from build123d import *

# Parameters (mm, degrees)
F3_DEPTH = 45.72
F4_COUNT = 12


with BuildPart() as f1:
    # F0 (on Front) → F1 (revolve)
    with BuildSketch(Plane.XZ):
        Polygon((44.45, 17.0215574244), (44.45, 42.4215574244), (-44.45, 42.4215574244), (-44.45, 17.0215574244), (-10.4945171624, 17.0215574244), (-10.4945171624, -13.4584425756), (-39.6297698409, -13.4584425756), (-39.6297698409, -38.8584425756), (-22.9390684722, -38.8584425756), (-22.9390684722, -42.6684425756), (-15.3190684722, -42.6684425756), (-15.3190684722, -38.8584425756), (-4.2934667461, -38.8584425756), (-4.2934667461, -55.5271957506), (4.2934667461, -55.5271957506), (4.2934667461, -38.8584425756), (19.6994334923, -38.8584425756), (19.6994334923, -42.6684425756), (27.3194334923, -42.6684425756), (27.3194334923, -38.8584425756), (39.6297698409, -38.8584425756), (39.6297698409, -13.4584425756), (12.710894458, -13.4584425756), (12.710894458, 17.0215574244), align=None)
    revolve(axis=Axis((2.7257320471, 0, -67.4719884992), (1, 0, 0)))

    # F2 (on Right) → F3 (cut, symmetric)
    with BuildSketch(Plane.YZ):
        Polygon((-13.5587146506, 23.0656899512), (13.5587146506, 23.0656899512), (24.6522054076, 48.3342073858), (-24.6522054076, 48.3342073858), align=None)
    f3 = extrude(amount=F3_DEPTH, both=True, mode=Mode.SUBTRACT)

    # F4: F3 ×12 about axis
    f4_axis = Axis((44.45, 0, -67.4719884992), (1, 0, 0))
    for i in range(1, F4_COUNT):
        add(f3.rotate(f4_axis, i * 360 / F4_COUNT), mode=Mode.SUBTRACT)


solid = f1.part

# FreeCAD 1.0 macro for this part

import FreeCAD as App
import Part
import Sketcher
from FreeCAD import Vector
Q = App.Units.Quantity


def add_polygon(sketch, points):
    """Adds a closed chain of lines whose ends are joined by coincident constraints."""
    first, n = sketch.GeometryCount, len(points)
    for a, b in zip(points, points[1:] + points[:1]):
        sketch.addGeometry(Part.LineSegment(App.Vector(*a, 0), App.Vector(*b, 0)), False)
    for i in range(n):
        sketch.addConstraint(Sketcher.Constraint("Coincident", first + i, 2, first + (i + 1) % n, 1))

doc = App.newDocument("Part")
body = doc.addObject("PartDesign::Body", "Body")

sketch1 = body.newObject("Sketcher::SketchObject", "Sketch")
sketch1.AttachmentSupport = (doc.getObject("XZ_Plane"), [""])
sketch1.MapMode = "FlatFace"
add_polygon(sketch1, [(44.5, 17), (44.5, 42.4), (-44.5, 42.4), (-44.5, 17), (-10.5, 17), (-10.5, -13.5), (-39.6, -13.5), (-39.6, -38.9), (-22.9, -38.9), (-22.9, -42.7), (-15.3, -42.7), (-15.3, -38.9), (-4.3, -38.9), (-4.3, -55.5), (4.3, -55.5), (4.3, -38.9), (19.7, -38.9), (19.7, -42.7), (27.3, -42.7), (27.3, -38.9), (39.6, -38.9), (39.6, -13.5), (12.7, -13.5), (12.7, 17)])
sketch1.addGeometry(Part.LineSegment(Vector(-44.5, -67.5, 0), Vector(44.5, -67.5, 0)), True)
sketch1.addConstraint(Sketcher.Constraint("Vertical", 0))
sketch1.addConstraint(Sketcher.Constraint("Horizontal", 1))
sketch1.addConstraint(Sketcher.Constraint("Vertical", 2))
sketch1.addConstraint(Sketcher.Constraint("Horizontal", 3))
sketch1.addConstraint(Sketcher.Constraint("Vertical", 4))
sketch1.addConstraint(Sketcher.Constraint("Horizontal", 5))
sketch1.addConstraint(Sketcher.Constraint("Vertical", 6))
sketch1.addConstraint(Sketcher.Constraint("Horizontal", 7))
sketch1.addConstraint(Sketcher.Constraint("Vertical", 8))
sketch1.addConstraint(Sketcher.Constraint("Horizontal", 9))
sketch1.addConstraint(Sketcher.Constraint("Vertical", 10))
sketch1.addConstraint(Sketcher.Constraint("Horizontal", 11))
sketch1.addConstraint(Sketcher.Constraint("Vertical", 12))
sketch1.addConstraint(Sketcher.Constraint("Horizontal", 13))
sketch1.addConstraint(Sketcher.Constraint("Vertical", 14))
sketch1.addConstraint(Sketcher.Constraint("Horizontal", 15))
sketch1.addConstraint(Sketcher.Constraint("Vertical", 16))
sketch1.addConstraint(Sketcher.Constraint("Horizontal", 17))
sketch1.addConstraint(Sketcher.Constraint("Vertical", 18))
sketch1.addConstraint(Sketcher.Constraint("Horizontal", 19))
sketch1.addConstraint(Sketcher.Constraint("Vertical", 20))
sketch1.addConstraint(Sketcher.Constraint("Horizontal", 21))
sketch1.addConstraint(Sketcher.Constraint("Vertical", 22))
sketch1.addConstraint(Sketcher.Constraint("Horizontal", 23))
sketch1.addConstraint(Sketcher.Constraint("Horizontal", 24))
sketch1.addConstraint(Sketcher.Constraint("Symmetric", 11, 2, 14, 2, -2))
sketch1.addConstraint(Sketcher.Constraint("Symmetric", 6, 2, 19, 2, -2))
sketch1.addConstraint(Sketcher.Constraint("Symmetric", 2, 2, 23, 2, -2))
sketch1.addConstraint(Sketcher.Constraint("Horizontal", 7, 2, 10, 2))
sketch1.addConstraint(Sketcher.Constraint("Horizontal", 9, 2, 16, 2))
sketch1.addConstraint(Sketcher.Constraint("Horizontal", 5, 2, 20, 2))
sketch1.addConstraint(Sketcher.Constraint("Vertical", 2, 2, 24, 1))
sketch1.addConstraint(Sketcher.Constraint("Vertical", 23, 2, 24, 2))
sketch1.addConstraint(Sketcher.Constraint("Equal", 9, 17))
sketch1.addConstraint(Sketcher.Constraint("Equal", 2, 6))
sketch1.addConstraint(Sketcher.Constraint("DistanceY", 0, 1, 0, 2, Q("1 in")))
sketch1.addConstraint(Sketcher.Constraint("DistanceX", 1, 2, 1, 1, Q("3.5 in")))
sketch1.addConstraint(Sketcher.Constraint("DistanceX", 9, 1, 9, 2, Q("0.3 in")))
sketch1.addConstraint(Sketcher.Constraint("DistanceY", 4, 2, 4, 1, Q("1.2 in")))
sketch1.addConstraint(Sketcher.Constraint("DistanceY", 8, 2, 8, 1, Q("0.15 in")))
sketch1.addConstraint(Sketcher.Constraint("DistanceY", 12, 2, 12, 1, Q("0.6562501 in")))
sketch1.addConstraint(Sketcher.Constraint("DistanceX", 7, 1, 7, 2, 16.690701))
sketch1.addConstraint(Sketcher.Constraint("DistanceX", 11, 1, 11, 2, 11.025602))
sketch1.addConstraint(Sketcher.Constraint("DistanceX", 11, 2, 15, 2, 23.9929))
sketch1.addConstraint(Sketcher.Constraint("DistanceX", 3, 1, 3, 2, 33.955483))
sketch1.addConstraint(Sketcher.Constraint("DistanceX", 5, 2, 5, 1, 29.135253))
sketch1.addConstraint(Sketcher.Constraint("DistanceX", 21, 2, 21, 1, 26.918875))
sketch1.addConstraint(Sketcher.Constraint("DistanceY", 24, 1, -1, 1, 67.471988))
sketch1.addConstraint(Sketcher.Constraint("DistanceY", -1, 1, 0, 2, 42.421557))
revolution = body.newObject("PartDesign::Revolution", "Revolution")
revolution.Profile = sketch1
revolution.ReferenceAxis = (sketch1, ["Axis0"])
revolution.Angle = 360

sketch2 = body.newObject("Sketcher::SketchObject", "Sketch001")
sketch2.AttachmentSupport = (doc.getObject("YZ_Plane"), [""])
sketch2.MapMode = "FlatFace"
add_polygon(sketch2, [(-14, 23), (14, 23), (25, 48), (-25, 48)])
sketch2.addConstraint(Sketcher.Constraint("Horizontal", 0))
sketch2.addConstraint(Sketcher.Constraint("Horizontal", 2))
sketch2.addConstraint(Sketcher.Constraint("Equal", 1, 3))
sketch2.addConstraint(Sketcher.Constraint("DistanceX", 0, 1, 0, 2, 27.117429))
sketch2.addConstraint(Sketcher.Constraint("DistanceX", 2, 2, 2, 1, 49.304411))
sketch2.addConstraint(Sketcher.Constraint("Distance", 1, 27.59644))
sketch2.addConstraint(Sketcher.Constraint("DistanceY", -1, 1, 0, 2, 23.06569))
sketch2.addConstraint(Sketcher.Constraint("DistanceX", -1, 1, 0, 2, 13.558715))
pocket1 = body.newObject("PartDesign::Pocket", "Pocket")
pocket1.Profile = sketch2
pocket1.Length = Q("3.6 in")
pocket1.Midplane = True
doc.recompute()

datumline = body.newObject("PartDesign::Line", "DatumLine")
datumline.Placement = App.Placement(Vector(0, 0, -67.471988), App.Rotation(Vector(0, 0, 1), Vector(1, 0, 0)))
polarpattern = body.newObject("PartDesign::PolarPattern", "PolarPattern")
polarpattern.Originals = [pocket1]
polarpattern.Axis = (datumline, [""])
polarpattern.Angle = 360
polarpattern.Occurrences = 12
body.Tip = polarpattern

doc.recompute()
